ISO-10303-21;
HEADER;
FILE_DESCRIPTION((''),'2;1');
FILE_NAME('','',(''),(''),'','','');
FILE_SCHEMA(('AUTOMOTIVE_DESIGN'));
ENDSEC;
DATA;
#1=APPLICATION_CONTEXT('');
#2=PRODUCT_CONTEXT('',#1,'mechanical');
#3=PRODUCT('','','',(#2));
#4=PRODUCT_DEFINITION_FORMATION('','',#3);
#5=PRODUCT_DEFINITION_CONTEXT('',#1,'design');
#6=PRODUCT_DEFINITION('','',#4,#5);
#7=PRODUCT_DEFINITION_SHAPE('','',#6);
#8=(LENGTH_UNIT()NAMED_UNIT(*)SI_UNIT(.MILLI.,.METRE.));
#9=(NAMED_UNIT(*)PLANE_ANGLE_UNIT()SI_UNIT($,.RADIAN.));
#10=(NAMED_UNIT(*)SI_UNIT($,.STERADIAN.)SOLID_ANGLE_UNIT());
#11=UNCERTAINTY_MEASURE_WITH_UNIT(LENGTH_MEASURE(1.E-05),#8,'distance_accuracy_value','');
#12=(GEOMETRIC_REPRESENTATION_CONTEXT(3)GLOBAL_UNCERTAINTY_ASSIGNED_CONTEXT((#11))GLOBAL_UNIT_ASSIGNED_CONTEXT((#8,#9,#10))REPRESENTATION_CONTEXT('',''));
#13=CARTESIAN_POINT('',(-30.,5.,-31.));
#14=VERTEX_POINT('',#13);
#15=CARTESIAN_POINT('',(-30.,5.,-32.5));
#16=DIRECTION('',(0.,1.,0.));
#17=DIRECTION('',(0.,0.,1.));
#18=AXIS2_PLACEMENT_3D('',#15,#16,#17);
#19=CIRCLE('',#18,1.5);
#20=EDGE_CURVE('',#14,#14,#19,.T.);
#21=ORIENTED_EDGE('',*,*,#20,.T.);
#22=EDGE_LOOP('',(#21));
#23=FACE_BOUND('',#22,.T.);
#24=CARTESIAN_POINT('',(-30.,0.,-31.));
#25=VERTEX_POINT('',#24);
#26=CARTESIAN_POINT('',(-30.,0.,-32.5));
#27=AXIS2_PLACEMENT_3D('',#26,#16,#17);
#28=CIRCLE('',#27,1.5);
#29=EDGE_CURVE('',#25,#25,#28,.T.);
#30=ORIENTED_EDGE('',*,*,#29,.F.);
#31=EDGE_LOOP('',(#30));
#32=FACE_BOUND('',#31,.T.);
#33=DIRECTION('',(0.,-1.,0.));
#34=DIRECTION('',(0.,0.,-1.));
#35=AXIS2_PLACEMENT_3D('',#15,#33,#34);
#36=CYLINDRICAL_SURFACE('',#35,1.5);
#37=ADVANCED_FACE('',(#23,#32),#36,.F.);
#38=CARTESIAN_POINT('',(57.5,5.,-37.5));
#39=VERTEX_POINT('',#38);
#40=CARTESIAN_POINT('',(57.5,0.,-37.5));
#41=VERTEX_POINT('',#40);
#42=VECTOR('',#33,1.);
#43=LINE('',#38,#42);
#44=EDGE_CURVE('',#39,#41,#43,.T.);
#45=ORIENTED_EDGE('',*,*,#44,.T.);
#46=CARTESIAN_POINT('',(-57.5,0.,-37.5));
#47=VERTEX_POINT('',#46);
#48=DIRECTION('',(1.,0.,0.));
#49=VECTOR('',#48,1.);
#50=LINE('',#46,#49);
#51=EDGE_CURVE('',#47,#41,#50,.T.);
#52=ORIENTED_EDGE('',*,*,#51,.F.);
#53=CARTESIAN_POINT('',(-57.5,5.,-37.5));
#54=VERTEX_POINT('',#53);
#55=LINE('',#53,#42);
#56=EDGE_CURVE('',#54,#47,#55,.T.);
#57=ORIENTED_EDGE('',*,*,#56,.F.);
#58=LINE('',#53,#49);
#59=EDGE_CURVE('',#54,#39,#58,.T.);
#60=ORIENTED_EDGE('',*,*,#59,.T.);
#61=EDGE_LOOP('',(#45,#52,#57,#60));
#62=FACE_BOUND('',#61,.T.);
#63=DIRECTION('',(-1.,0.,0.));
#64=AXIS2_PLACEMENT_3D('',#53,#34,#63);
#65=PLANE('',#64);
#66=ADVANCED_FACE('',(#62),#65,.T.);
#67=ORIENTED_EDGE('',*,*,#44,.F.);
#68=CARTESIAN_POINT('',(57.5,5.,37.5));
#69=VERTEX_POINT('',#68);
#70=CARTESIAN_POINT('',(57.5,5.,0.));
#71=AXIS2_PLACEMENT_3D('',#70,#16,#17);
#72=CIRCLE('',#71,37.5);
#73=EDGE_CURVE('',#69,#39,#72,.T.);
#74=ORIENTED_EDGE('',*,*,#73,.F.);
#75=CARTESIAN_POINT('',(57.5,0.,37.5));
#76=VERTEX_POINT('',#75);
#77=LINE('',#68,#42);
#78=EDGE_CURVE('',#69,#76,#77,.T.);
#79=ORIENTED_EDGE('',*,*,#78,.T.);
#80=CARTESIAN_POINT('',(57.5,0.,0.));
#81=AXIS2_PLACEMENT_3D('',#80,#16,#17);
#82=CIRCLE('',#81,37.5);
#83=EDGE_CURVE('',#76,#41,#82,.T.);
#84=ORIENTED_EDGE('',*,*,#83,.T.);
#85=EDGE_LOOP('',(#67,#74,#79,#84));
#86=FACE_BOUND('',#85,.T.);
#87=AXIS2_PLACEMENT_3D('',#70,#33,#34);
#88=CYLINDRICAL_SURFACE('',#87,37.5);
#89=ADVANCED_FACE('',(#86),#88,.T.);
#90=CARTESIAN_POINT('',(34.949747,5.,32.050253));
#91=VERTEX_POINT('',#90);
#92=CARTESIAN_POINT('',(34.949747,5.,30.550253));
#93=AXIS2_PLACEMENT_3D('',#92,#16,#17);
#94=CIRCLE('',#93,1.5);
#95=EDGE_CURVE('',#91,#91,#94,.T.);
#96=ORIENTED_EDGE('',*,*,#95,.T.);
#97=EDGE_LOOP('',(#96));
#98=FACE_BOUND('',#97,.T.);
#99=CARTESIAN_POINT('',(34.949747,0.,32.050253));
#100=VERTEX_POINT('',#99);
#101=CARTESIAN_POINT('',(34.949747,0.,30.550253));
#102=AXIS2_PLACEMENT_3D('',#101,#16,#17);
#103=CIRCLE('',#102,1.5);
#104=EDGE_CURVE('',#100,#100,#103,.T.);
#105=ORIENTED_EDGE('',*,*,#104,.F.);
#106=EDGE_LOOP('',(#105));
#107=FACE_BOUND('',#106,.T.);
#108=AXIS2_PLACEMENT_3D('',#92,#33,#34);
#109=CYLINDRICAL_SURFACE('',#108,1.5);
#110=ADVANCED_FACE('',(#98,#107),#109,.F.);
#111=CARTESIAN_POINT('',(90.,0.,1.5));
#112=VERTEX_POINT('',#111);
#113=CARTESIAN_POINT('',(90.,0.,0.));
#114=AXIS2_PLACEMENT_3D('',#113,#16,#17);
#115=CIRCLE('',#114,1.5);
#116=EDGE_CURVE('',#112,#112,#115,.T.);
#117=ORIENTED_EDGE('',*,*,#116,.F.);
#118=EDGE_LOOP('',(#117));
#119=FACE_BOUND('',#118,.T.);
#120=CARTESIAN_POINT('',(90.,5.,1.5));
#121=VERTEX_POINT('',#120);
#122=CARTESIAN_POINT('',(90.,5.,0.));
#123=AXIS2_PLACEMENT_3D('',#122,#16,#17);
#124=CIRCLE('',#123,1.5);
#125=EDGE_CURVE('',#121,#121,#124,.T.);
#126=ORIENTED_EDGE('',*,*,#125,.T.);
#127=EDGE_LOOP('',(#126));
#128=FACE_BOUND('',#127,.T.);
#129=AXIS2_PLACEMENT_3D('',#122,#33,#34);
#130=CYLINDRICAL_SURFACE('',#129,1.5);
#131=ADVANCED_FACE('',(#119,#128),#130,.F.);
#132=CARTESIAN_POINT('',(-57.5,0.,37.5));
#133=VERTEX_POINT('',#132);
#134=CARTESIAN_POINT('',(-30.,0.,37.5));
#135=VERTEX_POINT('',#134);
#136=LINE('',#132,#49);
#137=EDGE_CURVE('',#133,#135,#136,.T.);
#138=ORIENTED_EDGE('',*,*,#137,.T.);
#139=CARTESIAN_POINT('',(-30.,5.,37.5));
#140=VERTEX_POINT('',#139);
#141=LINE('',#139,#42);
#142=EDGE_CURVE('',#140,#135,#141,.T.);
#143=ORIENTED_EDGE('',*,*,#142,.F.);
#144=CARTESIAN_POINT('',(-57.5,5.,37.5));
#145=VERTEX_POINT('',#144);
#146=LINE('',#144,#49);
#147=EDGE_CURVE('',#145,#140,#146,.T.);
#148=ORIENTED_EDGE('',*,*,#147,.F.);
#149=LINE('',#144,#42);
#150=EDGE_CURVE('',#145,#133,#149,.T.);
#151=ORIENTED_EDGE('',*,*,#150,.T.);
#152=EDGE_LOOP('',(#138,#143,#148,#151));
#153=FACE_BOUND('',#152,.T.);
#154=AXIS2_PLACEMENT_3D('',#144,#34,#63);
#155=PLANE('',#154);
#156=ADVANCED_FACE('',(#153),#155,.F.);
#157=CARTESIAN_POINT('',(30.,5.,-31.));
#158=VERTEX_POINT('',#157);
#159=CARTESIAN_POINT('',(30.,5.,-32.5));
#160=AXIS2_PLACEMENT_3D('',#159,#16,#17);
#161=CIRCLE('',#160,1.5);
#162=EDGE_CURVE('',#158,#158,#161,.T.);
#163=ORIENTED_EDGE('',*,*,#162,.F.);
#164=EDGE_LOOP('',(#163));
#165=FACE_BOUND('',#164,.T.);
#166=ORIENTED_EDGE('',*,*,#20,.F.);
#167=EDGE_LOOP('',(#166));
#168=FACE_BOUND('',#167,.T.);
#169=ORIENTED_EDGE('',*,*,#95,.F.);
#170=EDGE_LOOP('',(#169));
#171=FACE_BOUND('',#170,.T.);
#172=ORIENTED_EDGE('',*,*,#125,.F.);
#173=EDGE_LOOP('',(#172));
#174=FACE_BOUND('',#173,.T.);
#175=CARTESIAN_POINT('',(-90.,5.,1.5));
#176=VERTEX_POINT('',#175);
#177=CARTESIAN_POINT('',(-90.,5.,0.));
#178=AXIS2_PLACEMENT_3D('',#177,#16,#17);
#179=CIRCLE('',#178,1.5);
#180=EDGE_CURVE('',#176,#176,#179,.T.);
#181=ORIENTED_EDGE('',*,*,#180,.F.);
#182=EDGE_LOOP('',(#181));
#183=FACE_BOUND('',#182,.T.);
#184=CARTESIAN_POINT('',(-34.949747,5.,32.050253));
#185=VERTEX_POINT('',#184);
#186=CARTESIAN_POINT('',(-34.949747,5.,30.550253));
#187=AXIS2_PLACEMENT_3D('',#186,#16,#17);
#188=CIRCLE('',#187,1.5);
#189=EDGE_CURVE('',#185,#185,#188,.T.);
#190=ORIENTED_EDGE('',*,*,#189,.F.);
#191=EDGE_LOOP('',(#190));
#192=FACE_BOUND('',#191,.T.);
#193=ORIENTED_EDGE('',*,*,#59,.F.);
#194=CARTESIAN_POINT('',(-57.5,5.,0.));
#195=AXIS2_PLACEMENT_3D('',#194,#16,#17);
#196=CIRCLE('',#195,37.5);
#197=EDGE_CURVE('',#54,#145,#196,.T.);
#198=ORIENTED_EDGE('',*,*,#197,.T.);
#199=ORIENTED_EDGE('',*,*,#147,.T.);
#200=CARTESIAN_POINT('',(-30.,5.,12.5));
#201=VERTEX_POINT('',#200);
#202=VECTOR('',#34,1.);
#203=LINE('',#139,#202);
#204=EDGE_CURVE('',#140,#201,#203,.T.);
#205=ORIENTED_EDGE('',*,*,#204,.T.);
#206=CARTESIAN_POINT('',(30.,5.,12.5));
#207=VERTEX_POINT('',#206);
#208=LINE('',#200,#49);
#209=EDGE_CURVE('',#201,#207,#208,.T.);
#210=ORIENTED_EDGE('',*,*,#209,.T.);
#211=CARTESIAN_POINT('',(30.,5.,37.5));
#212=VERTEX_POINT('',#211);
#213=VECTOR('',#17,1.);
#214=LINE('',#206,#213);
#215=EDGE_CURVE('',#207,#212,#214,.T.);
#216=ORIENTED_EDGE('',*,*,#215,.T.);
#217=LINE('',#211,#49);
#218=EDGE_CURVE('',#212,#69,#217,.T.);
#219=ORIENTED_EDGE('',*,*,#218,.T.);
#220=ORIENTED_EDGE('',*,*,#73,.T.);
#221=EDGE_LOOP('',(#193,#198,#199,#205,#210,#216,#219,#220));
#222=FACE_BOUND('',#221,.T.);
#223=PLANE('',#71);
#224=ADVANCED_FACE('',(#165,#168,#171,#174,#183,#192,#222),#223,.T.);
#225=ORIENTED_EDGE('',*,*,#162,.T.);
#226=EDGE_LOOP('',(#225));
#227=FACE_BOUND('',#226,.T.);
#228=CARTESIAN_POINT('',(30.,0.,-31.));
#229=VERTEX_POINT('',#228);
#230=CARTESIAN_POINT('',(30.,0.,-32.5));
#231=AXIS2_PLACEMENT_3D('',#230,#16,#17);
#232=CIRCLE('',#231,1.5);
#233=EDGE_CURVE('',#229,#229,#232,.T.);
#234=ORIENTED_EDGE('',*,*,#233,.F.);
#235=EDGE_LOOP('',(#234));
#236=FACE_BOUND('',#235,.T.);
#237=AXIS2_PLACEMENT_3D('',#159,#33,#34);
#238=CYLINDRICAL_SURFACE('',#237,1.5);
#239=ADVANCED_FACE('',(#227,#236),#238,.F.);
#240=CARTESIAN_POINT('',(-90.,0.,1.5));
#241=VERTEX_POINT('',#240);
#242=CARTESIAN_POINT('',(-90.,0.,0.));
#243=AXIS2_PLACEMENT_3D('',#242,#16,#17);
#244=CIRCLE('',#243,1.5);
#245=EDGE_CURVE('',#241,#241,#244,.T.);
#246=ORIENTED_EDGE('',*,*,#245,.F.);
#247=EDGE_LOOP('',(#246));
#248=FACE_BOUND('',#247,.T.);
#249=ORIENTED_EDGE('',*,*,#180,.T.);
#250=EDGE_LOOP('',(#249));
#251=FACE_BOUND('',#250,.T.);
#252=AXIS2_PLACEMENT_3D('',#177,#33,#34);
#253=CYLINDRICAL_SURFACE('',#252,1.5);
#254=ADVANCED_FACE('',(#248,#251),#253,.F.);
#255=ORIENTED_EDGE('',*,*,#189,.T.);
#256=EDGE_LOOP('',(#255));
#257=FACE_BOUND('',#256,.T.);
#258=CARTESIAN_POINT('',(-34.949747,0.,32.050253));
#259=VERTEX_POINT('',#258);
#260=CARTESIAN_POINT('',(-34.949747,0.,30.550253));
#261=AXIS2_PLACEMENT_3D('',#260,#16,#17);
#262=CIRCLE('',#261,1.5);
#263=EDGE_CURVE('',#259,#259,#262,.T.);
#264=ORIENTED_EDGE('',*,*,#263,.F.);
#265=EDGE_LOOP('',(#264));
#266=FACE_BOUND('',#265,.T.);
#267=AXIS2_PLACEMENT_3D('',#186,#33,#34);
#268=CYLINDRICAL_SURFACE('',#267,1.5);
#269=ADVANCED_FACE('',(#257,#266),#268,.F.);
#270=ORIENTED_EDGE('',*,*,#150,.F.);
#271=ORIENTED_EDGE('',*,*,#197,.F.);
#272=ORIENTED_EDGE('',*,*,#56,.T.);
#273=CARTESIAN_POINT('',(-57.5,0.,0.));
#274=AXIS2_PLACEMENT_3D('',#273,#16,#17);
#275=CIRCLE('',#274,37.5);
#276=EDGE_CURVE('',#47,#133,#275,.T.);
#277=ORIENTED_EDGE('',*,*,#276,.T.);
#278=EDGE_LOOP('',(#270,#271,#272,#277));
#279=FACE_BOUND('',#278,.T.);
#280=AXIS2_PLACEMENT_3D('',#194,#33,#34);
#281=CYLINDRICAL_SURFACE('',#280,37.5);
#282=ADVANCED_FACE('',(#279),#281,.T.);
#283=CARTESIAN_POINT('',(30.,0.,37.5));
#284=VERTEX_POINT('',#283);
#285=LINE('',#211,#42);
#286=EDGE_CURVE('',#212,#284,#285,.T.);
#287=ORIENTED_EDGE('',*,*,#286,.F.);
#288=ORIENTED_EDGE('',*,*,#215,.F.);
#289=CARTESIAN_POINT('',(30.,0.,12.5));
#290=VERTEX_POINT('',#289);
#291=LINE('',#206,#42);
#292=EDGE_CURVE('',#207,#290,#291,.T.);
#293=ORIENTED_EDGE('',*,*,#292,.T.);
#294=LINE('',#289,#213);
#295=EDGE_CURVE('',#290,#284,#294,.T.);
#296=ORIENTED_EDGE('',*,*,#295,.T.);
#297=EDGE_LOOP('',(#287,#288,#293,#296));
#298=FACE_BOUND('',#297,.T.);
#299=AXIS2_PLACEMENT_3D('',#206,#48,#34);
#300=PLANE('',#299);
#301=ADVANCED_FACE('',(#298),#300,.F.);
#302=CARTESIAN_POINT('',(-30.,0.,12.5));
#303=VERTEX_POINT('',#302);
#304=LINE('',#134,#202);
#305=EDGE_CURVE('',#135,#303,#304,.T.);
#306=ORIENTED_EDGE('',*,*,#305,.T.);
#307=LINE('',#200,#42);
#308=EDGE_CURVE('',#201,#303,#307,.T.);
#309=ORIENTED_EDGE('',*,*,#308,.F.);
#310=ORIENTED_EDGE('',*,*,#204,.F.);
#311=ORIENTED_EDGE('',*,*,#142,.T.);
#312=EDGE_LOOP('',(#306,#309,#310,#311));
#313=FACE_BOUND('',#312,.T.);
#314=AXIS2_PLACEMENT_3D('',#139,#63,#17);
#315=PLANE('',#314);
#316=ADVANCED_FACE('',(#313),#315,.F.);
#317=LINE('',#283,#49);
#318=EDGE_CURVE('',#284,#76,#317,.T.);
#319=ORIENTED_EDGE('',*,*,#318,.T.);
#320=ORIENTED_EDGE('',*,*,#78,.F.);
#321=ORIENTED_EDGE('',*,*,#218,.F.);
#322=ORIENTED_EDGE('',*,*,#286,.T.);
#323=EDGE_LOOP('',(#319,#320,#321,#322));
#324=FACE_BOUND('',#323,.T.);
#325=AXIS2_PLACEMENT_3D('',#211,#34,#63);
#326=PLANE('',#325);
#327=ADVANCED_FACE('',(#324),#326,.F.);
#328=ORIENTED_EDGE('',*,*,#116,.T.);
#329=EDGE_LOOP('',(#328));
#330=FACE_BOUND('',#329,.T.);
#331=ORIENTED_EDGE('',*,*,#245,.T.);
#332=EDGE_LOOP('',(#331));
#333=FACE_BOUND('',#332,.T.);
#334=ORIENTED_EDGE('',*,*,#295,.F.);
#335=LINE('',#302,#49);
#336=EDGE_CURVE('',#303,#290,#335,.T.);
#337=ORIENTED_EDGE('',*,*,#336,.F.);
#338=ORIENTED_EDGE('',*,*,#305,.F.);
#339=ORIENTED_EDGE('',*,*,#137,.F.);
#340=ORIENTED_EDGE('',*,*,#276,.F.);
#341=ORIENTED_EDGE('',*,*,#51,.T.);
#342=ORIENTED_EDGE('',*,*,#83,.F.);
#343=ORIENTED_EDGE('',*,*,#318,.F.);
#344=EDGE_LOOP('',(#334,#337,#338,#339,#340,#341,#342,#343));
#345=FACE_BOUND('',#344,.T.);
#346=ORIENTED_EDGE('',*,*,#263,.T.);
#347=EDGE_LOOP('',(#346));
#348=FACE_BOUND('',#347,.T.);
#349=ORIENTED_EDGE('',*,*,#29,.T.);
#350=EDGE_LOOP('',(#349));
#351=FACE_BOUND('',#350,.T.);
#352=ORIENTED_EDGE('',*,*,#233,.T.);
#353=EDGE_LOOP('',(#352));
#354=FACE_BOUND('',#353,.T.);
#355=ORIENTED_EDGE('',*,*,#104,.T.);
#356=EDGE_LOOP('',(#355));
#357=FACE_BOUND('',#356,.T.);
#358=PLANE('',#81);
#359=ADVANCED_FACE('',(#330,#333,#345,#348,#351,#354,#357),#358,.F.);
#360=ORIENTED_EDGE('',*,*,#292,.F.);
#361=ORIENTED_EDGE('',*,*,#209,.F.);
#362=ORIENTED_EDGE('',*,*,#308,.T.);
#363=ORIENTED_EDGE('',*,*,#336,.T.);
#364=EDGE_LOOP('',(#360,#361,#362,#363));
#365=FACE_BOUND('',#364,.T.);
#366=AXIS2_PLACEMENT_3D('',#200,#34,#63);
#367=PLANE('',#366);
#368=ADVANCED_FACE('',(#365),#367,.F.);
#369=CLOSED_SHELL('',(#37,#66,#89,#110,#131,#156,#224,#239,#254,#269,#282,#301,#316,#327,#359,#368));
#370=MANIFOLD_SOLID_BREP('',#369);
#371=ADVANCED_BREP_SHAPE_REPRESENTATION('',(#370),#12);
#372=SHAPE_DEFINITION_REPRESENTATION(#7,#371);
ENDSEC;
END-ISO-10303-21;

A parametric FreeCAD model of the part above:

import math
import FreeCAD as App
import Part
import Sketcher
from FreeCAD import Vector
Q = App.Units.Quantity

doc = App.newDocument("Part")
params = doc.addObject("Spreadsheet::Sheet", "Params")
for row, (alias, value) in enumerate([
    ("sketch1_diameter", "3 mm"),
    ("sketch1_radius", "37.5 mm"),
    ("sketch1_width", "115 mm"),
    ("sketch1_width2", "60 mm"),
    ("sketch1_height", "25 mm"),
    ("pad1_length", "5 mm"),
], start=1):
    params.set(f"A{row}", alias)
    params.set(f"B{row}", "=" + value)
    params.setAlias(f"B{row}", alias)

body = doc.addObject("PartDesign::Body", "Body")

# Sketch on XZ plane
sketch1 = body.newObject("Sketcher::SketchObject", "Sketch")
sketch1.AttachmentSupport = (doc.getObject("XZ_Plane"), [""])
sketch1.MapMode = "FlatFace"
sketch1.addGeometry([
    Part.LineSegment(Vector(57.5, -37.5, 0), Vector(-57.5, -37.5, 0)),  # 0
    Part.ArcOfCircle(Part.Circle(Vector(-57.5, 0, 0), Vector(0, 0, 1), 37.5), math.radians(90), math.radians(270)),  # 1
    Part.LineSegment(Vector(-57.5, 37.5, 0), Vector(-30, 37.5, 0)),  # 2
    Part.LineSegment(Vector(-30, 37.5, 0), Vector(-30, 12.5, 0)),  # 3
    Part.LineSegment(Vector(-30, 12.5, 0), Vector(30, 12.5, 0)),  # 4
    Part.LineSegment(Vector(30, 12.5, 0), Vector(30, 37.5, 0)),  # 5
    Part.LineSegment(Vector(30, 37.5, 0), Vector(57.5, 37.5, 0)),  # 6
    Part.ArcOfCircle(Part.Circle(Vector(57.5, 0, 0), Vector(0, 0, 1), 37.5), math.radians(-90), math.radians(90)),  # 7
    Part.Circle(Vector(34.9, 30.6, 0), Vector(0, 0, 1), 1.5),  # 8
    Part.Circle(Vector(90, 0, 0), Vector(0, 0, 1), 1.5),  # 9
    Part.Circle(Vector(-34.9, 30.6, 0), Vector(0, 0, 1), 1.5),  # 10
    Part.Circle(Vector(-90, 0, 0), Vector(0, 0, 1), 1.5),  # 11
    Part.Circle(Vector(30, -32.5, 0), Vector(0, 0, 1), 1.5),  # 12
    Part.Circle(Vector(-30, -32.5, 0), Vector(0, 0, 1), 1.5),  # 13
], False)
sketch1.addConstraint([
    Sketcher.Constraint("Tangent", 0, 2, 1, 2),
    Sketcher.Constraint("Tangent", 1, 1, 2, 1),
    Sketcher.Constraint("Coincident", 2, 2, 3, 1),
    Sketcher.Constraint("Coincident", 3, 2, 4, 1),
    Sketcher.Constraint("Coincident", 4, 2, 5, 1),
    Sketcher.Constraint("Coincident", 5, 2, 6, 1),
    Sketcher.Constraint("Tangent", 6, 2, 7, 2),
    Sketcher.Constraint("Tangent", 7, 1, 0, 1),
    Sketcher.Constraint("Horizontal", 0),
    Sketcher.Constraint("Horizontal", 2),
    Sketcher.Constraint("Vertical", 3),
    Sketcher.Constraint("Horizontal", 4),
    Sketcher.Constraint("Vertical", 5),
    Sketcher.Constraint("Horizontal", 6),
    Sketcher.Constraint("Equal", 1, 7),
    Sketcher.Constraint("Equal", 8, 9),
    Sketcher.Constraint("Equal", 9, 10),
    Sketcher.Constraint("Equal", 10, 11),
    Sketcher.Constraint("Equal", 11, 12),
    Sketcher.Constraint("Equal", 12, 13),
    Sketcher.Constraint("Symmetric", 1, 3, 7, 3, -1, 1),
    Sketcher.Constraint("Symmetric", 9, 3, 11, 3, -1, 1),
    Sketcher.Constraint("Symmetric", 8, 3, 10, 3, -2),
    Sketcher.Constraint("Symmetric", 12, 3, 13, 3, -2),
    Sketcher.Constraint("PointOnObject", 9, 3, -1),
    Sketcher.Constraint("Vertical", 13, 3, 2, 2),
    Sketcher.Constraint("Vertical", 12, 3, 4, 2),
    Sketcher.Constraint("Diameter", 8, Q("3 mm")),
    Sketcher.Constraint("Radius", 1, Q("37.5 mm")),
    Sketcher.Constraint("DistanceX", 0, 2, 0, 1, Q("115 mm")),
    Sketcher.Constraint("DistanceX", 4, 1, 4, 2, Q("60 mm")),
    Sketcher.Constraint("DistanceY", 3, 2, 3, 1, Q("25 mm")),
    Sketcher.Constraint("DistanceX", -1, 1, 9, 3, Q("90 mm")),
    Sketcher.Constraint("DistanceY", 0, 2, 13, 3, Q("5 mm")),
    Sketcher.Constraint("DistanceX", -1, 1, 8, 3, Q("34.949747 mm")),
    Sketcher.Constraint("DistanceY", -1, 1, 8, 3, Q("30.550253 mm")),
])
sketch1.setExpression("Constraints[27]", "Params.sketch1_diameter")
sketch1.setExpression("Constraints[28]", "Params.sketch1_radius")
sketch1.setExpression("Constraints[29]", "Params.sketch1_width")
sketch1.setExpression("Constraints[30]", "Params.sketch1_width2")
sketch1.setExpression("Constraints[31]", "Params.sketch1_height")
pad1 = body.newObject("PartDesign::Pad", "Pad")
pad1.Profile = sketch1
pad1.setExpression("Length", "Params.pad1_length")
pad1.Reversed = True

doc.recompute()
